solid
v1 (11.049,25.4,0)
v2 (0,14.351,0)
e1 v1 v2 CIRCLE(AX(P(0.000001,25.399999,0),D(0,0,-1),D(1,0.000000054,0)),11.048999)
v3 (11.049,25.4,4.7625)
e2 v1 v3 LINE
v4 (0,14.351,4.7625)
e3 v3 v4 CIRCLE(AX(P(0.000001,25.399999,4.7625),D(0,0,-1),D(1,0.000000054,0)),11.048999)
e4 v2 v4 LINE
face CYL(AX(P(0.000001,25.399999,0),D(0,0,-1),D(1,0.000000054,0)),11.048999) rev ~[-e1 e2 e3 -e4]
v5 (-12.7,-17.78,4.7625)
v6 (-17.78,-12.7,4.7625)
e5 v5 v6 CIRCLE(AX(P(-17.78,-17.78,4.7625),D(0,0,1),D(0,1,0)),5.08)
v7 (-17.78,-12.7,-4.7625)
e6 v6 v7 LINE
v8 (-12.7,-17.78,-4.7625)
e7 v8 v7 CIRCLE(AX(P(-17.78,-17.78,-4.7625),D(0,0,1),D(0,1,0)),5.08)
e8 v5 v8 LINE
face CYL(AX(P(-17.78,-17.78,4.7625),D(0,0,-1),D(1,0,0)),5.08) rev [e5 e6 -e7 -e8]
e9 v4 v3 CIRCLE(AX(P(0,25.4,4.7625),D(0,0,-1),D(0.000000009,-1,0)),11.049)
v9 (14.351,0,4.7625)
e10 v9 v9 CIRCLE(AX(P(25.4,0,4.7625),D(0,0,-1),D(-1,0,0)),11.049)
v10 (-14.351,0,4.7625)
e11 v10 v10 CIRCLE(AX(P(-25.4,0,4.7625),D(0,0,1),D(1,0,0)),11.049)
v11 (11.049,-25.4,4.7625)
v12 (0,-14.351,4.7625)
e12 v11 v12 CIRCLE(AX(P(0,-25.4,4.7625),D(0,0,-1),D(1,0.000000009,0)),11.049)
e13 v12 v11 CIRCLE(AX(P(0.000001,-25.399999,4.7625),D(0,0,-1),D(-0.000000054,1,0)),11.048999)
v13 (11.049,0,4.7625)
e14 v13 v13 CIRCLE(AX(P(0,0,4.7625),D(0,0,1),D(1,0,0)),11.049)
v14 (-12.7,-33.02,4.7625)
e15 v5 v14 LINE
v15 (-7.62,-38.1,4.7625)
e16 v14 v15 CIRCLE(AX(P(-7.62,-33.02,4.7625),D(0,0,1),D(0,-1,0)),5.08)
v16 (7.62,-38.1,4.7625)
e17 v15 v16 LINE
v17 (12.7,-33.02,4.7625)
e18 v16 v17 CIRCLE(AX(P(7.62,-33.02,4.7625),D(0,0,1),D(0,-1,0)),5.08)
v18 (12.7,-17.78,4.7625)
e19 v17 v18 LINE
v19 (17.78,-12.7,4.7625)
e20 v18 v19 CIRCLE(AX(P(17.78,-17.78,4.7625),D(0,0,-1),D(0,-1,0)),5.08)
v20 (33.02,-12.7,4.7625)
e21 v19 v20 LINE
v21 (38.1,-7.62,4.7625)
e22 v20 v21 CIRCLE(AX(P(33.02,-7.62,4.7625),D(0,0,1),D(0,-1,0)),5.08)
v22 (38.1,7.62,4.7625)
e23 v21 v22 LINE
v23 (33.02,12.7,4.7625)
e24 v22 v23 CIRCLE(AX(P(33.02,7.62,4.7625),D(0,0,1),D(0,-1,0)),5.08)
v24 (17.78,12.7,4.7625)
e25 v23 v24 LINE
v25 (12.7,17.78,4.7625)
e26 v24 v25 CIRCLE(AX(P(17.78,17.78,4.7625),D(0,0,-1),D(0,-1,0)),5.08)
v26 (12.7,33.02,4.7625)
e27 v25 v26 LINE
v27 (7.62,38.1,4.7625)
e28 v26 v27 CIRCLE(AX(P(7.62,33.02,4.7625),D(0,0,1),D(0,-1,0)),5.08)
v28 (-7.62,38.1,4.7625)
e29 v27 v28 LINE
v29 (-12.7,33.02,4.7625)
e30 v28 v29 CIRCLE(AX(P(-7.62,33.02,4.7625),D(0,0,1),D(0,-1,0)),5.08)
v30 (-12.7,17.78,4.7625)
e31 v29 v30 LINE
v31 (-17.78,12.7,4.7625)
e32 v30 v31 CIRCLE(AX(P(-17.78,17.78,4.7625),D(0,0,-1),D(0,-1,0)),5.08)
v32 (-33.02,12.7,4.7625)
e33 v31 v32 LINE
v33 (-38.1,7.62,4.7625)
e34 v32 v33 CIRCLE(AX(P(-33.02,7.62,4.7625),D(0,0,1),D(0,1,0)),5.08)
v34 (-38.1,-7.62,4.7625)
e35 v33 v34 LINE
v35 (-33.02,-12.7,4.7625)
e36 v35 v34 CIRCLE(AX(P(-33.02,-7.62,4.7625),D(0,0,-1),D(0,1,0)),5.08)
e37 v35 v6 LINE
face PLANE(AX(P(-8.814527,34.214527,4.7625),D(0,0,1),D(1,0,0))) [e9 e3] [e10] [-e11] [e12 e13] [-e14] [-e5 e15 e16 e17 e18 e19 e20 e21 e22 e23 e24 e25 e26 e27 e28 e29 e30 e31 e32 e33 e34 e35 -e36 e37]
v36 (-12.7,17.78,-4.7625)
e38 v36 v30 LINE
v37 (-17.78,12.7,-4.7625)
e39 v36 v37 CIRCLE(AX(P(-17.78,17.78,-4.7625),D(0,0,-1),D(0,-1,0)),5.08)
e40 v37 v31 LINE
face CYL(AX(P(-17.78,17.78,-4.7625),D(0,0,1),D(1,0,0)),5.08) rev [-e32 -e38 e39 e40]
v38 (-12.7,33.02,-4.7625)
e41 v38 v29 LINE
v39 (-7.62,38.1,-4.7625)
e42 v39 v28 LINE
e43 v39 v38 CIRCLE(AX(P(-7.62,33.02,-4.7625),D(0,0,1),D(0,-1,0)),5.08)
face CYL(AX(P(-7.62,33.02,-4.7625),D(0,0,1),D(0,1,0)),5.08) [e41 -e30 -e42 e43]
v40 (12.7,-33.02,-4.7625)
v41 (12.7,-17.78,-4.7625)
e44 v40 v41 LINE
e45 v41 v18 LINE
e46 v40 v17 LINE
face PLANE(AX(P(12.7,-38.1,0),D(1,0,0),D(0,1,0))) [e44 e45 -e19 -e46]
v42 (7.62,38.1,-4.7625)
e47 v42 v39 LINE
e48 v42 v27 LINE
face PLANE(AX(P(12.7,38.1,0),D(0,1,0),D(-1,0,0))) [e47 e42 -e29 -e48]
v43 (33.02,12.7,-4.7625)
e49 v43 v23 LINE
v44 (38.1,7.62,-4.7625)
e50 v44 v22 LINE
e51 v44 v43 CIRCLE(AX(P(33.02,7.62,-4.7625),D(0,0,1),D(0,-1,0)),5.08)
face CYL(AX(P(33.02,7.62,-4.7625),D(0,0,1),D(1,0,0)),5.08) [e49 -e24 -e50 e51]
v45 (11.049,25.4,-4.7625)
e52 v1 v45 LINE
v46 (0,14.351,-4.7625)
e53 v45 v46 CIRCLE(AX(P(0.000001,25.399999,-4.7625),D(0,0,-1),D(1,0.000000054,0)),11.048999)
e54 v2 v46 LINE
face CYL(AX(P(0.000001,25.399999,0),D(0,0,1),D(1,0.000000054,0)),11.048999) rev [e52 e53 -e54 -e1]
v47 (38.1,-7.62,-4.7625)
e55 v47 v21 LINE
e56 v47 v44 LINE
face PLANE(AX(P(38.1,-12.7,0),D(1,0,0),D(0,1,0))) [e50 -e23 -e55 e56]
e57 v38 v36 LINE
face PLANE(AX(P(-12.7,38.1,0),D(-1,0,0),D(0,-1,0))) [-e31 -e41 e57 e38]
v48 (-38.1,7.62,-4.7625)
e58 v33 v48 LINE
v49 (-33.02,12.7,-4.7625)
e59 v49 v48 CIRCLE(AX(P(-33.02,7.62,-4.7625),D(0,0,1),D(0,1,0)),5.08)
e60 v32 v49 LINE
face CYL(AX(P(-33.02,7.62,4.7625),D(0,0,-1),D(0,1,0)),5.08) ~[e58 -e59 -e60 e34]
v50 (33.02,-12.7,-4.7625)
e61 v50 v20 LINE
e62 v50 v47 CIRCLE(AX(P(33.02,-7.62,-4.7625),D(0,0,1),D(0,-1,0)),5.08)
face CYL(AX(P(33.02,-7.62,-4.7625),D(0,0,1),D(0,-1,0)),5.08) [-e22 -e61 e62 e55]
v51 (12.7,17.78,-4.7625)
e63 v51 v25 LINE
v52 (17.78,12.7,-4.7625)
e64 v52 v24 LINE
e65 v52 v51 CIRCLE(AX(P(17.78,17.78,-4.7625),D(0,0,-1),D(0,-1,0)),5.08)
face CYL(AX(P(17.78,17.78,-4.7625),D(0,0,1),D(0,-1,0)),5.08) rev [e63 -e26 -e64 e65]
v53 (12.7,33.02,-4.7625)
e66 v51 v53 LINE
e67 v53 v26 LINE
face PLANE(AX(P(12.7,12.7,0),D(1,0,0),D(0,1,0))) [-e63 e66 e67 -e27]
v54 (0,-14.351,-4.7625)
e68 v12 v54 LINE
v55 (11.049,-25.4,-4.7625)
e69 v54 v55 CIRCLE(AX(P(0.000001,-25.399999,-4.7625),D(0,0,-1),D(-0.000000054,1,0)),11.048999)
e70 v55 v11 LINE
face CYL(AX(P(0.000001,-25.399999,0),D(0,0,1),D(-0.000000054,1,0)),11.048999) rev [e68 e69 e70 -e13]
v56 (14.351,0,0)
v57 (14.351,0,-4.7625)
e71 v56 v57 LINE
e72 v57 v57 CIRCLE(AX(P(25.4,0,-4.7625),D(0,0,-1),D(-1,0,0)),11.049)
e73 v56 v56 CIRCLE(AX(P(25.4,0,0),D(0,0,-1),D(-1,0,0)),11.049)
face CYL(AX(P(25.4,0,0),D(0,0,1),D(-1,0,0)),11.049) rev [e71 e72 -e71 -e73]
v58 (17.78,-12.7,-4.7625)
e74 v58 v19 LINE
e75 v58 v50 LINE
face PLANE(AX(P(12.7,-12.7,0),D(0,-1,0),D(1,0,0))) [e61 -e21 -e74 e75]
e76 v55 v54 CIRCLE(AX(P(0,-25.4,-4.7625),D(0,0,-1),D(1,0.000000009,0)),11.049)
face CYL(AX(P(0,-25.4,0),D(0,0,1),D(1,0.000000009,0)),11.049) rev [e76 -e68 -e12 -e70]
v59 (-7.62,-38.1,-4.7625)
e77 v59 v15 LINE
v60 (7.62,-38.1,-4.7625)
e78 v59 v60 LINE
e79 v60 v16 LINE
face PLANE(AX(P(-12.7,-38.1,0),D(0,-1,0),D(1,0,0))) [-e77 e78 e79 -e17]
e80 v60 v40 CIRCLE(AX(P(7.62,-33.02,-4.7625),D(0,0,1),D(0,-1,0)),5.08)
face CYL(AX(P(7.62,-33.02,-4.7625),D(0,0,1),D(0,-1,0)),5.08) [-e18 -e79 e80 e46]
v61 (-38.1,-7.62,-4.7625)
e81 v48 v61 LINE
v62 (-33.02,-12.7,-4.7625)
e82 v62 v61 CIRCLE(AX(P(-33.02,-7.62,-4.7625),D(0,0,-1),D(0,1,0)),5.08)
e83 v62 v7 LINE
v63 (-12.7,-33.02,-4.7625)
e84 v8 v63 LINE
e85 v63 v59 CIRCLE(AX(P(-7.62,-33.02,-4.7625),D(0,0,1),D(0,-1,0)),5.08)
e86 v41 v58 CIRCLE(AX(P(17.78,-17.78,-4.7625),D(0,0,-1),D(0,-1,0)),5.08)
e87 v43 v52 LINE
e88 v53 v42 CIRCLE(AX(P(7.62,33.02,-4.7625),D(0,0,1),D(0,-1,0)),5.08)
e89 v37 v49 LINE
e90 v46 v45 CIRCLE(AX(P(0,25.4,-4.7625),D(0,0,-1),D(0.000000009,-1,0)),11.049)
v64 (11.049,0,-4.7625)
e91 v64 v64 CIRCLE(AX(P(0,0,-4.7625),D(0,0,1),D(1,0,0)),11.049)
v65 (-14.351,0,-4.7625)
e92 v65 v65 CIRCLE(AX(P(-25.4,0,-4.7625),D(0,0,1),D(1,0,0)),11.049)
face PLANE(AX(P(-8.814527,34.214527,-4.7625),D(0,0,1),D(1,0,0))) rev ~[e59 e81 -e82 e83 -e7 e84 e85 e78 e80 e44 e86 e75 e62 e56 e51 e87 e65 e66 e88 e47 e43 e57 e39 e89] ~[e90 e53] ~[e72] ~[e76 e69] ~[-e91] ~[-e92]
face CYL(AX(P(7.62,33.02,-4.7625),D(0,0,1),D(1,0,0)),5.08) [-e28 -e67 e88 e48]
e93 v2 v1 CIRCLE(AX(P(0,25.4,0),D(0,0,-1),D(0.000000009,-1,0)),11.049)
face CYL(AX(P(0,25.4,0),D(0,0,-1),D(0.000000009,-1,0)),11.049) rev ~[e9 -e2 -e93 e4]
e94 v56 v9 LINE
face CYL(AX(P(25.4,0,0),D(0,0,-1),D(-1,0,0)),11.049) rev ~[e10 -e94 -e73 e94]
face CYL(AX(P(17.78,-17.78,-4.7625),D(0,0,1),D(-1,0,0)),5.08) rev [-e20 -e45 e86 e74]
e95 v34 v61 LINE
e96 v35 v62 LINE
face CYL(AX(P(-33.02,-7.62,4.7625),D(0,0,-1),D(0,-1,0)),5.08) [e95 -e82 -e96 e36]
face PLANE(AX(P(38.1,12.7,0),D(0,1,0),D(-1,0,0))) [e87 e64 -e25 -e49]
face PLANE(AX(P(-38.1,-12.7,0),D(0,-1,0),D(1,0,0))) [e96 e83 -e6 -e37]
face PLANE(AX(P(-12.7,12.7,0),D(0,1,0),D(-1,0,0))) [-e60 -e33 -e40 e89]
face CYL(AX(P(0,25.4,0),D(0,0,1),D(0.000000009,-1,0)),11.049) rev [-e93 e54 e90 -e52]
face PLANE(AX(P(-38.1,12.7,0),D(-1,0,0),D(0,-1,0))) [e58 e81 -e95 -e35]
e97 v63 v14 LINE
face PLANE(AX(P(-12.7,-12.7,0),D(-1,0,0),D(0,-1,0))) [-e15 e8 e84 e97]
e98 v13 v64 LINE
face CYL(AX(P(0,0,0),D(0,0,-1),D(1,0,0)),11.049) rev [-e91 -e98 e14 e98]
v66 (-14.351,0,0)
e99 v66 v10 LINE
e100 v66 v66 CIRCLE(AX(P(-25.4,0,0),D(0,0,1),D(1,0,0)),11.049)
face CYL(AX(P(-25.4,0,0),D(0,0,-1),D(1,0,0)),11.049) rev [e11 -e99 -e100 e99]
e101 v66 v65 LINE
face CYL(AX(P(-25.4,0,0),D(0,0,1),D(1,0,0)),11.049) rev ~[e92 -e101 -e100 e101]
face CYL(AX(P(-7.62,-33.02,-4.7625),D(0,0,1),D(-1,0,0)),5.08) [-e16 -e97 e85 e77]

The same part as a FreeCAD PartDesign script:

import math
import FreeCAD as App
import Part
import Sketcher

V = App.Vector
Q = App.Units.Quantity


def edges_at(feature, points):
    """Names of the edges that pass closest to the given points."""
    edges = feature.Shape.Edges
    near = lambda p: min(range(len(edges)), key=lambda i: edges[i].distToShape(Part.Vertex(*p))[0])
    return sorted({f"Edge{near(p) + 1}" for p in points})


def add_polygon(sketch, points):
    """Adds a closed chain of lines whose ends are joined by coincident constraints."""
    first, n = sketch.GeometryCount, len(points)
    for a, b in zip(points, points[1:] + points[:1]):
        sketch.addGeometry(Part.LineSegment(App.Vector(*a, 0), App.Vector(*b, 0)), False)
    for i in range(n):
        sketch.addConstraint(Sketcher.Constraint("Coincident", first + i, 2, first + (i + 1) % n, 1))

doc = App.newDocument("Part")
body = doc.addObject("PartDesign::Body", "Body")

# Sketch on XY plane
sketch1 = doc.addObject("Sketcher::SketchObject", "Sketch")
body.addObject(sketch1)
sketch1.AttachmentSupport = (doc.XY_Plane, [""])
sketch1.MapMode = "FlatFace"
sketch1.addGeometry([
    Part.Circle(V(0, 0, 0), V(0, 0, 1), 12.7),
    Part.Circle(V(0, 0, 0), V(0, 0, 1), 11.049),
], False)
sketch1.addConstraint([
    Sketcher.Constraint("Coincident", 0, 3, -1, 1),
    Sketcher.Constraint("Coincident", 1, 3, -1, 1),
    Sketcher.Constraint("Diameter", 0, Q("1 in")),
    Sketcher.Constraint("Diameter", 1, Q("0.87 in")),
])
pad1 = doc.addObject("PartDesign::Pad", "Pad")
body.addObject(pad1)
pad1.Profile = sketch1
pad1.Length = Q("0.375 in")
pad1.Midplane = True

# Sketch on XY plane
sketch2 = doc.addObject("Sketcher::SketchObject", "Sketch001")
body.addObject(sketch2)
sketch2.AttachmentSupport = (doc.XY_Plane, [""])
sketch2.MapMode = "FlatFace"
add_polygon(sketch2, [(-12.7, -12.7), (-12.7, -38.1), (12.7, -38.1), (12.7, -12.7), (38.1, -12.7), (38.1, 12.7), (12.7, 12.7), (12.7, 38.1), (-12.7, 38.1), (-12.7, 12.7), (-38.1, 12.7), (-38.1, -12.7)])  # lines 0-11
sketch2.addGeometry(Part.ArcOfCircle(Part.Circle(V(0.000001, -25.399999, 0), V(0, 0, 1), 11.048999), math.radians(-0.000003), math.radians(90.000003)), False)  # 12
sketch2.addGeometry(Part.ArcOfCircle(Part.Circle(V(0, -25.4, 0), V(0, 0, 1), 11.049), math.radians(89.999999), math.radians(360.000001)), False)  # 13
sketch2.addGeometry(Part.Circle(V(-25.4, 0, 0), V(0, 0, 1), 11.049), False)  # 14
sketch2.addGeometry(Part.ArcOfCircle(Part.Circle(V(0, 25.4, 0), V(0, 0, 1), 11.049), math.radians(-0.000001), math.radians(270.000001)), False)  # 15
sketch2.addGeometry(Part.ArcOfCircle(Part.Circle(V(0.000001, 25.399999, 0), V(0, 0, 1), 11.048999), math.radians(-90.000003), math.radians(0.000003)), False)  # 16
sketch2.addGeometry(Part.ArcOfCircle(Part.Circle(V(0, 0, 0), V(0, 0, 1), 12.7), math.radians(-89.999998), math.radians(-0.000002)), False)  # 17
sketch2.addGeometry(Part.ArcOfCircle(Part.Circle(V(0, 0, 0), V(0, 0, 1), 12.7), math.radians(-179.999998), math.radians(-90.000002)), False)  # 18
sketch2.addGeometry(Part.ArcOfCircle(Part.Circle(V(0, 0, 0), V(0, 0, 1), 12.7), math.radians(90.000002), math.radians(179.999998)), False)  # 19
sketch2.addGeometry(Part.ArcOfCircle(Part.Circle(V(0, 0, 0), V(0, 0, 1), 12.7), math.radians(0.000002), math.radians(89.999998)), False)  # 20
sketch2.addGeometry(Part.Circle(V(25.4, 0, 0), V(0, 0, 1), 11.049), False)  # 21
sketch2.addConstraint([
    Sketcher.Constraint("Tangent", 12, 1, 13, 2),
    Sketcher.Constraint("Coincident", 13, 1, 12, 2),
    Sketcher.Constraint("Tangent", 15, 1, 16, 2),
    Sketcher.Constraint("Coincident", 16, 1, 15, 2),
    Sketcher.Constraint("Tangent", 17, 1, 18, 2),
    Sketcher.Constraint("Tangent", 18, 1, 19, 2),
    Sketcher.Constraint("Tangent", 19, 1, 20, 2),
    Sketcher.Constraint("Tangent", 20, 1, 17, 2),
    Sketcher.Constraint("Vertical", 0),
    Sketcher.Constraint("Horizontal", 1),
    Sketcher.Constraint("Vertical", 2),
    Sketcher.Constraint("Horizontal", 3),
    Sketcher.Constraint("Vertical", 4),
    Sketcher.Constraint("Horizontal", 5),
    Sketcher.Constraint("Vertical", 6),
    Sketcher.Constraint("Horizontal", 7),
    Sketcher.Constraint("Vertical", 8),
    Sketcher.Constraint("Horizontal", 9),
    Sketcher.Constraint("Vertical", 10),
    Sketcher.Constraint("Horizontal", 11),
    Sketcher.Constraint("Coincident", 17, 3, -1, 1),
    Sketcher.Constraint("Equal", 13, 14),
    Sketcher.Constraint("Equal", 14, 15),
    Sketcher.Constraint("Equal", 17, 18),
    Sketcher.Constraint("Equal", 16, 21),
    Sketcher.Constraint("Symmetric", 12, 3, 15, 3, -1, 1),
    Sketcher.Constraint("Symmetric", 14, 3, 21, 3, -1, 1),
    Sketcher.Constraint("Symmetric", 0, 2, 6, 2, -1, 1),
    Sketcher.Constraint("Symmetric", 2, 2, 8, 2, -1, 1),
    Sketcher.Constraint("Symmetric", 4, 2, 10, 2, -1, 1),
    Sketcher.Constraint("Symmetric", 5, 2, 8, 2, -2),
    Sketcher.Constraint("Symmetric", 12, 1, 15, 1, -1),
    Sketcher.Constraint("PointOnObject", 14, 3, -1),
    Sketcher.Constraint("PointOnObject", 13, 1, -2),
    Sketcher.Constraint("PointOnObject", 16, 1, -2),
    Sketcher.Constraint("PointOnObject", 17, 1, -2),
    Sketcher.Constraint("PointOnObject", 18, 1, -1),
    Sketcher.Constraint("PointOnObject", 19, 1, -2),
    Sketcher.Constraint("PointOnObject", 20, 1, -1),
    Sketcher.Constraint("Horizontal", 13, 3, 12, 1),
    Sketcher.Constraint("Horizontal", 11, 2, 17, 1),
    Sketcher.Constraint("Vertical", 11, 2, 18, 1),
    Sketcher.Constraint("Equal", 1, 3),
    Sketcher.Constraint("Equal", 11, 0),
    Sketcher.Constraint("Radius", 17, Q("0.5 in")),
    Sketcher.Constraint("Diameter", 14, Q("0.87 in")),
    Sketcher.Constraint("DistanceY", 12, 3, -1, 1, Q("1 in")),
    Sketcher.Constraint("DistanceX", 14, 3, -1, 1, Q("1 in")),
])
pad2 = doc.addObject("PartDesign::Pad", "Pad001")
body.addObject(pad2)
pad2.Profile = sketch2
pad2.Length = Q("0.375 in")
pad2.Midplane = True
doc.recompute()

fillet = doc.addObject("PartDesign::Fillet", "Fillet")
body.addObject(fillet)
fillet.Base = (pad2, edges_at(pad2, [
    (12.7, -12.7, 0),
    (12.7, -38.1, 0),
    (-12.7, -38.1, 0),
    (38.1, -12.7, 0),
    (38.1, 12.7, 0),
    (12.7, 38.1, 0),
    (-38.1, 12.7, 0),
    (-12.7, 38.1, 0),
    (12.7, 12.7, 0),
    (-12.7, 12.7, 0),
    (-38.1, -12.7, 0),
    (-12.7, -12.7, 0),
]))
fillet.Radius = Q("0.2 in")

doc.recompute()
